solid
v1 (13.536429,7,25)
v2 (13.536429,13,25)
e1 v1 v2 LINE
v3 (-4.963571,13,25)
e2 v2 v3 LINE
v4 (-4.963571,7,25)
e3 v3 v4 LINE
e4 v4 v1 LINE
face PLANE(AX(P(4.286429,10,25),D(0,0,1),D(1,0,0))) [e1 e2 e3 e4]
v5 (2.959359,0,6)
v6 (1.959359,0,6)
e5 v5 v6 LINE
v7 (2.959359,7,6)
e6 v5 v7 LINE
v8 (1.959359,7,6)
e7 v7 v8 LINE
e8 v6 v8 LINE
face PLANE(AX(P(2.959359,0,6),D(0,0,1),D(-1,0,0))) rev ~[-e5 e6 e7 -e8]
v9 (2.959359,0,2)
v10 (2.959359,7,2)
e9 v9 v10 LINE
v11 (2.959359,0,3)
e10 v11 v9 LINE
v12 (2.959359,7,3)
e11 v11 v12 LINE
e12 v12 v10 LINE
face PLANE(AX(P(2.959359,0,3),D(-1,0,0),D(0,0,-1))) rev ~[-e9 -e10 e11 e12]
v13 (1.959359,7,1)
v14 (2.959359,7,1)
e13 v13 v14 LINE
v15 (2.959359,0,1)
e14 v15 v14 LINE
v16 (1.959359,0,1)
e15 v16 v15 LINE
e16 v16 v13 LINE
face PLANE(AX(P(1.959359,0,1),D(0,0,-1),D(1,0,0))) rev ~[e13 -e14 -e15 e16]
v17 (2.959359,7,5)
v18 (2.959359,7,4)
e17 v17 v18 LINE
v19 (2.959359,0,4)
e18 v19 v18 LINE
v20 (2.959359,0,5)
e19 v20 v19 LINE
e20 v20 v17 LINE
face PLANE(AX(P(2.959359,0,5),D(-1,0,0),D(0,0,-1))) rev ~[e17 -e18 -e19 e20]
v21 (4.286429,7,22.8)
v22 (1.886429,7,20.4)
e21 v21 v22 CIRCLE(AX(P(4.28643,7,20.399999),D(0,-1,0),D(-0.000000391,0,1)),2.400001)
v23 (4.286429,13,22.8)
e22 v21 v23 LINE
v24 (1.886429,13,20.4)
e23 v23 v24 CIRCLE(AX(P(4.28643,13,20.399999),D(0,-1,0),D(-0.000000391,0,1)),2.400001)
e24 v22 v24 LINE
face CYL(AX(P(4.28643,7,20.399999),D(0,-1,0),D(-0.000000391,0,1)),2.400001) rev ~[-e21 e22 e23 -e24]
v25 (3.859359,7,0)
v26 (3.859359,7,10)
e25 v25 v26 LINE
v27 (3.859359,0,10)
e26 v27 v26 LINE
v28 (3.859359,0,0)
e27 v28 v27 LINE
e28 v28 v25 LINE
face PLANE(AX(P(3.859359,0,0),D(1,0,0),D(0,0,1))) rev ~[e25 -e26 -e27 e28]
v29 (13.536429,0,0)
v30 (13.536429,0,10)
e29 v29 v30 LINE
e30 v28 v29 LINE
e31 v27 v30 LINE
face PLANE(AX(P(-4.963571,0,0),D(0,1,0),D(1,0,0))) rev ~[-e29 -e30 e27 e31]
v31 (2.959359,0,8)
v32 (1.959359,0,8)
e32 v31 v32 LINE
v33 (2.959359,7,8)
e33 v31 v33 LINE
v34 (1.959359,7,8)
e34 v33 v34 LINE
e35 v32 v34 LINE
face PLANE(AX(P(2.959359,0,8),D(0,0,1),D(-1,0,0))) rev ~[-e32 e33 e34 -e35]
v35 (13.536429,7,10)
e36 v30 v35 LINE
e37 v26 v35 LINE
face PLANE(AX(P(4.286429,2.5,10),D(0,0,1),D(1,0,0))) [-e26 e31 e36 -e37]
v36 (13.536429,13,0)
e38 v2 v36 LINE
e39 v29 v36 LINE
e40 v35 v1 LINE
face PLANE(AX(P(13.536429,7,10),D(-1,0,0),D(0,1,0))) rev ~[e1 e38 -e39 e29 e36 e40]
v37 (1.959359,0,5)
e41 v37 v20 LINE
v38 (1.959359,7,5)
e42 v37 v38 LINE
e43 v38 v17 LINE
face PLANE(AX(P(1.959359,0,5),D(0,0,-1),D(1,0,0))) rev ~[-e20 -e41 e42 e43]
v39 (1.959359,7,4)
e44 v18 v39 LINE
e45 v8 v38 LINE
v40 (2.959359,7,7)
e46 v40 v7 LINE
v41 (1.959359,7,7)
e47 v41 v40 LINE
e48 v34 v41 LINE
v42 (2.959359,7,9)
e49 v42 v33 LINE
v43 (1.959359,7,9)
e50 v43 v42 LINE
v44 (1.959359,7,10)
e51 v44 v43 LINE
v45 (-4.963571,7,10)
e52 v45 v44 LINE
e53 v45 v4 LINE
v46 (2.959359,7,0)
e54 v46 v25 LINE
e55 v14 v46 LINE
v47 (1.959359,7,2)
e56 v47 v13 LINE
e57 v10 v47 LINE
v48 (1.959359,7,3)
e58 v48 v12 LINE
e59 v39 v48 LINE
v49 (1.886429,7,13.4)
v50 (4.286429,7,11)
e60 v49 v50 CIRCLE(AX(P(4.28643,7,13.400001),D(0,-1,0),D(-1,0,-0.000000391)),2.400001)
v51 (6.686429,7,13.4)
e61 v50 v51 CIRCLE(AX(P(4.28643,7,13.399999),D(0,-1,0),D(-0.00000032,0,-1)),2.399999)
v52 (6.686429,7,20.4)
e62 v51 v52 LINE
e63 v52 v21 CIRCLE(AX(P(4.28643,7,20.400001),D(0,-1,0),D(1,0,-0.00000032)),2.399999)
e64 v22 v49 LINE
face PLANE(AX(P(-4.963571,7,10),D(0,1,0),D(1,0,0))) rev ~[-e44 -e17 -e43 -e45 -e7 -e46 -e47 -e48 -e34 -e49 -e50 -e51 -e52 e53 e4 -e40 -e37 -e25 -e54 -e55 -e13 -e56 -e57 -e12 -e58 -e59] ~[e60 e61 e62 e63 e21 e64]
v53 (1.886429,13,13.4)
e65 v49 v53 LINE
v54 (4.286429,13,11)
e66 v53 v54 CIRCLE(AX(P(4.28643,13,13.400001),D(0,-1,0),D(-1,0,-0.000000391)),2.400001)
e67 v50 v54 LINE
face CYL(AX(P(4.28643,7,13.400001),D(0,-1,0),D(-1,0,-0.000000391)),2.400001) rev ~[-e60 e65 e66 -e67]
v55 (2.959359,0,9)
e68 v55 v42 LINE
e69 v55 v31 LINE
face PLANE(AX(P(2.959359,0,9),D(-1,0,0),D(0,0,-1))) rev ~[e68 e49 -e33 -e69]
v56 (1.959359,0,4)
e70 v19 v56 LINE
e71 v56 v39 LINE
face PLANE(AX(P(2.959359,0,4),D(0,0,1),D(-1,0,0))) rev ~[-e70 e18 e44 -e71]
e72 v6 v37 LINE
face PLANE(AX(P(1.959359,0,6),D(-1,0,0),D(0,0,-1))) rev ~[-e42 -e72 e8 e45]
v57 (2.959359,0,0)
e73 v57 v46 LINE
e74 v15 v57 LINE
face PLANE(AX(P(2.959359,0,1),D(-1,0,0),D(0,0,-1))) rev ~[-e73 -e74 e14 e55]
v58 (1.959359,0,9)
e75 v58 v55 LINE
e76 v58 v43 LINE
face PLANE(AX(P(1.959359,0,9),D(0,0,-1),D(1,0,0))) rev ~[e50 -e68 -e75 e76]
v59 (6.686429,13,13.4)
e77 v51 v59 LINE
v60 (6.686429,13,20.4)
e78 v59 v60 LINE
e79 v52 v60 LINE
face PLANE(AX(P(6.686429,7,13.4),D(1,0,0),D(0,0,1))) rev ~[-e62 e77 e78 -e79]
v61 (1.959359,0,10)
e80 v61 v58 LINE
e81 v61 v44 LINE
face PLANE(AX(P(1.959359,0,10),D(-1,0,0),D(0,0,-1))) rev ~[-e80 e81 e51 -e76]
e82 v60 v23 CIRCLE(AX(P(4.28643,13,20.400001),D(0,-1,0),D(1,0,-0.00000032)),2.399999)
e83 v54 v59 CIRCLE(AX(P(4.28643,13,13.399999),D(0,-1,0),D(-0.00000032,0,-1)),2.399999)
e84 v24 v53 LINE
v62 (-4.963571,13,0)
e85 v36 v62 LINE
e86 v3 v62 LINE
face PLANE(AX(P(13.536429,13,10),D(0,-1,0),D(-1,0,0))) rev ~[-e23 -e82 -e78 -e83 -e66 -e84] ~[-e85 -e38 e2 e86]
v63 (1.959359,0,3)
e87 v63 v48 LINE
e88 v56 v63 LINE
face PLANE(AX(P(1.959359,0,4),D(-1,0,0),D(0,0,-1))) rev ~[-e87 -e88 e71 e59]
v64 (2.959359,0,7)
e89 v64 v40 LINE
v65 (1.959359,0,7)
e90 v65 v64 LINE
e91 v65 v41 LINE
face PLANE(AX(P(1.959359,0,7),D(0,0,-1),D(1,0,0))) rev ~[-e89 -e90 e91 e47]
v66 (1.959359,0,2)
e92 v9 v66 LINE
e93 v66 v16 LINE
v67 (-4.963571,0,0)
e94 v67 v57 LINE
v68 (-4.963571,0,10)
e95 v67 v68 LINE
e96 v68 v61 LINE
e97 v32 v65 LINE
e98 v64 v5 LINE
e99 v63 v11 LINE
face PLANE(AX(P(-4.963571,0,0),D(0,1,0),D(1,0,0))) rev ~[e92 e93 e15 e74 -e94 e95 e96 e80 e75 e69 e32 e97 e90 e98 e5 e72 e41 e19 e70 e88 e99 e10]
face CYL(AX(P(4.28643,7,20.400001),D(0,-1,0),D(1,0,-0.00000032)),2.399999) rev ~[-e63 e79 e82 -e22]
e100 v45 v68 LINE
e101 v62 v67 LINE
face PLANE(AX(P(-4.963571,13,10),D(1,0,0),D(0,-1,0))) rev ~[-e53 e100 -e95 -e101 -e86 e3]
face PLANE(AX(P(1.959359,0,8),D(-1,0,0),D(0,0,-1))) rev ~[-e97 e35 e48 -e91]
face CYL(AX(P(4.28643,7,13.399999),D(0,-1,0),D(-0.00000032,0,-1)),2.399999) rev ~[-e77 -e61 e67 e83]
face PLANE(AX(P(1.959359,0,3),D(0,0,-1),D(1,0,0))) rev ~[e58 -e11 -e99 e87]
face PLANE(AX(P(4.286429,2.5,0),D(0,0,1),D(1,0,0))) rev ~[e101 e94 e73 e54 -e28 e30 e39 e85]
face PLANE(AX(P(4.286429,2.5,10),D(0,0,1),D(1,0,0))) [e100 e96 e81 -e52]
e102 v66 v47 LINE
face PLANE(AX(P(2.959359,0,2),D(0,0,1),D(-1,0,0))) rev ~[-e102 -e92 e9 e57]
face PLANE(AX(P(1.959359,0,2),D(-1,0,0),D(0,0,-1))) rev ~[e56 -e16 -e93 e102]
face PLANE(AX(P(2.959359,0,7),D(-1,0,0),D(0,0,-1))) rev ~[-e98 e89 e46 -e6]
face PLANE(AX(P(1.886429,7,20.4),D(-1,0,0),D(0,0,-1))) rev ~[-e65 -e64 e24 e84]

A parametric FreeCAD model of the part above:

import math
import FreeCAD as App
import Part
import Sketcher

V = App.Vector

doc = App.newDocument("Part")
body = doc.addObject("PartDesign::Body", "Body")

# Sketch on XY plane
sketch1 = body.newObject("Sketcher::SketchObject", "Sketch")
sketch1.AttachmentSupport = (doc.getObject("XY_Plane"), [""])
sketch1.MapMode = "FlatFace"
sketch1.addGeometry(Part.LineSegment(V(-4.963571, 0, 0), V(13.536429, 0, 0)), False)
sketch1.addGeometry(Part.LineSegment(V(13.536429, 0, 0), V(13.536429, 13, 0)), False)
sketch1.addGeometry(Part.LineSegment(V(13.536429, 13, 0), V(-4.963571, 13, 0)), False)
sketch1.addGeometry(Part.LineSegment(V(-4.963571, 13, 0), V(-4.963571, 0, 0)), False)
sketch1.addConstraint(Sketcher.Constraint("Coincident", 0, 2, 1, 1))
sketch1.addConstraint(Sketcher.Constraint("Coincident", 1, 2, 2, 1))
sketch1.addConstraint(Sketcher.Constraint("Coincident", 2, 2, 3, 1))
sketch1.addConstraint(Sketcher.Constraint("Coincident", 3, 2, 0, 1))
sketch1.addConstraint(Sketcher.Constraint("Horizontal", 0))
sketch1.addConstraint(Sketcher.Constraint("Vertical", 1))
sketch1.addConstraint(Sketcher.Constraint("Horizontal", 2))
sketch1.addConstraint(Sketcher.Constraint("Vertical", 3))
sketch1.addConstraint(Sketcher.Constraint("PointOnObject", 0, 2, -1))
sketch1.addConstraint(Sketcher.Constraint("DistanceY", 1, 1, 1, 2, 13.0))
sketch1.addConstraint(Sketcher.Constraint("DistanceX", 0, 1, 0, 2, 18.5))
sketch1.addConstraint(Sketcher.Constraint("DistanceX", -1, 1, 0, 2, 13.536429))
pad1 = body.newObject("PartDesign::Pad", "Pad")
pad1.Profile = sketch1
pad1.Length = 10

# Sketch on XZ plane
sketch2 = body.newObject("Sketcher::SketchObject", "Sketch001")
sketch2.AttachmentSupport = (doc.getObject("XZ_Plane"), [""])
sketch2.MapMode = "FlatFace"
sketch2.addGeometry(Part.LineSegment(V(3.859359, 10, 0), V(1.959359, 10, 0)), False)
sketch2.addGeometry(Part.LineSegment(V(1.959359, 10, 0), V(1.959359, 9, 0)), False)
sketch2.addGeometry(Part.LineSegment(V(1.959359, 9, 0), V(2.959359, 9, 0)), False)
sketch2.addGeometry(Part.LineSegment(V(2.959359, 9, 0), V(2.959359, 8, 0)), False)
sketch2.addGeometry(Part.LineSegment(V(2.959359, 8, 0), V(1.959359, 8, 0)), False)
sketch2.addGeometry(Part.LineSegment(V(1.959359, 8, 0), V(1.959359, 7, 0)), False)
sketch2.addGeometry(Part.LineSegment(V(1.959359, 7, 0), V(2.959359, 7, 0)), False)
sketch2.addGeometry(Part.LineSegment(V(2.959359, 7, 0), V(2.959359, 6, 0)), False)
sketch2.addGeometry(Part.LineSegment(V(2.959359, 6, 0), V(1.959359, 6, 0)), False)
sketch2.addGeometry(Part.LineSegment(V(1.959359, 6, 0), V(1.959359, 5, 0)), False)
sketch2.addGeometry(Part.LineSegment(V(1.959359, 5, 0), V(2.959359, 5, 0)), False)
sketch2.addGeometry(Part.LineSegment(V(2.959359, 5, 0), V(2.959359, 4, 0)), False)
sketch2.addGeometry(Part.LineSegment(V(2.959359, 4, 0), V(1.959359, 4, 0)), False)
sketch2.addGeometry(Part.LineSegment(V(1.959359, 4, 0), V(1.959359, 3, 0)), False)
sketch2.addGeometry(Part.LineSegment(V(1.959359, 3, 0), V(2.959359, 3, 0)), False)
sketch2.addGeometry(Part.LineSegment(V(2.959359, 3, 0), V(2.959359, 2, 0)), False)
sketch2.addGeometry(Part.LineSegment(V(2.959359, 2, 0), V(1.959359, 2, 0)), False)
sketch2.addGeometry(Part.LineSegment(V(1.959359, 2, 0), V(1.959359, 1, 0)), False)
sketch2.addGeometry(Part.LineSegment(V(1.959359, 1, 0), V(2.959359, 1, 0)), False)
sketch2.addGeometry(Part.LineSegment(V(2.959359, 1, 0), V(2.959359, 0, 0)), False)
sketch2.addGeometry(Part.LineSegment(V(2.959359, 0, 0), V(3.859359, 0, 0)), False)
sketch2.addGeometry(Part.LineSegment(V(3.859359, 0, 0), V(3.859359, 10, 0)), False)
sketch2.addConstraint(Sketcher.Constraint("Coincident", 0, 2, 1, 1))
sketch2.addConstraint(Sketcher.Constraint("Coincident", 1, 2, 2, 1))
sketch2.addConstraint(Sketcher.Constraint("Coincident", 2, 2, 3, 1))
sketch2.addConstraint(Sketcher.Constraint("Coincident", 3, 2, 4, 1))
sketch2.addConstraint(Sketcher.Constraint("Coincident", 4, 2, 5, 1))
sketch2.addConstraint(Sketcher.Constraint("Coincident", 5, 2, 6, 1))
sketch2.addConstraint(Sketcher.Constraint("Coincident", 6, 2, 7, 1))
sketch2.addConstraint(Sketcher.Constraint("Coincident", 7, 2, 8, 1))
sketch2.addConstraint(Sketcher.Constraint("Coincident", 8, 2, 9, 1))
sketch2.addConstraint(Sketcher.Constraint("Coincident", 9, 2, 10, 1))
sketch2.addConstraint(Sketcher.Constraint("Coincident", 10, 2, 11, 1))
sketch2.addConstraint(Sketcher.Constraint("Coincident", 11, 2, 12, 1))
sketch2.addConstraint(Sketcher.Constraint("Coincident", 12, 2, 13, 1))
sketch2.addConstraint(Sketcher.Constraint("Coincident", 13, 2, 14, 1))
sketch2.addConstraint(Sketcher.Constraint("Coincident", 14, 2, 15, 1))
sketch2.addConstraint(Sketcher.Constraint("Coincident", 15, 2, 16, 1))
sketch2.addConstraint(Sketcher.Constraint("Coincident", 16, 2, 17, 1))
sketch2.addConstraint(Sketcher.Constraint("Coincident", 17, 2, 18, 1))
sketch2.addConstraint(Sketcher.Constraint("Coincident", 18, 2, 19, 1))
sketch2.addConstraint(Sketcher.Constraint("Coincident", 19, 2, 20, 1))
sketch2.addConstraint(Sketcher.Constraint("Coincident", 20, 2, 21, 1))
sketch2.addConstraint(Sketcher.Constraint("Coincident", 21, 2, 0, 1))
sketch2.addConstraint(Sketcher.Constraint("Horizontal", 0))
sketch2.addConstraint(Sketcher.Constraint("Vertical", 1))
sketch2.addConstraint(Sketcher.Constraint("Horizontal", 2))
sketch2.addConstraint(Sketcher.Constraint("Vertical", 3))
sketch2.addConstraint(Sketcher.Constraint("Horizontal", 4))
sketch2.addConstraint(Sketcher.Constraint("Vertical", 5))
sketch2.addConstraint(Sketcher.Constraint("Horizontal", 6))
sketch2.addConstraint(Sketcher.Constraint("Vertical", 7))
sketch2.addConstraint(Sketcher.Constraint("Horizontal", 8))
sketch2.addConstraint(Sketcher.Constraint("Vertical", 9))
sketch2.addConstraint(Sketcher.Constraint("Horizontal", 10))
sketch2.addConstraint(Sketcher.Constraint("Vertical", 11))
sketch2.addConstraint(Sketcher.Constraint("Horizontal", 12))
sketch2.addConstraint(Sketcher.Constraint("Vertical", 13))
sketch2.addConstraint(Sketcher.Constraint("Horizontal", 14))
sketch2.addConstraint(Sketcher.Constraint("Vertical", 15))
sketch2.addConstraint(Sketcher.Constraint("Horizontal", 16))
sketch2.addConstraint(Sketcher.Constraint("Vertical", 17))
sketch2.addConstraint(Sketcher.Constraint("Horizontal", 18))
sketch2.addConstraint(Sketcher.Constraint("Vertical", 19))
sketch2.addConstraint(Sketcher.Constraint("Horizontal", 20))
sketch2.addConstraint(Sketcher.Constraint("Vertical", 21))
sketch2.addConstraint(Sketcher.Constraint("PointOnObject", 19, 2, -1))
sketch2.addConstraint(Sketcher.Constraint("Vertical", 1, 2, 4, 2))
sketch2.addConstraint(Sketcher.Constraint("Vertical", 3, 2, 6, 2))
sketch2.addConstraint(Sketcher.Constraint("Vertical", 5, 2, 8, 2))
sketch2.addConstraint(Sketcher.Constraint("Vertical", 7, 2, 10, 2))
sketch2.addConstraint(Sketcher.Constraint("Vertical", 9, 2, 12, 2))
sketch2.addConstraint(Sketcher.Constraint("Vertical", 11, 2, 14, 2))
sketch2.addConstraint(Sketcher.Constraint("Vertical", 13, 2, 16, 2))
sketch2.addConstraint(Sketcher.Constraint("Vertical", 15, 2, 18, 2))
sketch2.addConstraint(Sketcher.Constraint("Equal", 18, 1))
sketch2.addConstraint(Sketcher.Constraint("Equal", 1, 3))
sketch2.addConstraint(Sketcher.Constraint("Equal", 3, 5))
sketch2.addConstraint(Sketcher.Constraint("Equal", 5, 7))
sketch2.addConstraint(Sketcher.Constraint("Equal", 7, 9))
sketch2.addConstraint(Sketcher.Constraint("Equal", 9, 11))
sketch2.addConstraint(Sketcher.Constraint("Equal", 11, 13))
sketch2.addConstraint(Sketcher.Constraint("Equal", 13, 15))
sketch2.addConstraint(Sketcher.Constraint("Equal", 15, 17))
sketch2.addConstraint(Sketcher.Constraint("Equal", 17, 19))
sketch2.addConstraint(Sketcher.Constraint("DistanceX", 2, 1, 2, 2, 1.0))
sketch2.addConstraint(Sketcher.Constraint("DistanceX", 0, 2, 0, 1, 1.9))
sketch2.addConstraint(Sketcher.Constraint("DistanceX", -1, 1, 0, 2, 1.959359))
pocket1 = body.newObject("PartDesign::Pocket", "Pocket")
pocket1.Profile = sketch2
pocket1.Length = 7

# Sketch on XY plane
sketch3 = body.newObject("Sketcher::SketchObject", "Sketch002")
sketch3.AttachmentSupport = (doc.getObject("XY_Plane"), [""])
sketch3.MapMode = "FlatFace"
sketch3.AttachmentOffset = App.Placement(V(0, 0, 10), App.Rotation())
sketch3.addGeometry(Part.LineSegment(V(-4.963571, 13, 0), V(-4.963571, 7, 0)), False)
sketch3.addGeometry(Part.LineSegment(V(-4.963571, 7, 0), V(13.536429, 7, 0)), False)
sketch3.addGeometry(Part.LineSegment(V(13.536429, 7, 0), V(13.536429, 13, 0)), False)
sketch3.addGeometry(Part.LineSegment(V(13.536429, 13, 0), V(-4.963571, 13, 0)), False)
sketch3.addConstraint(Sketcher.Constraint("Coincident", 0, 2, 1, 1))
sketch3.addConstraint(Sketcher.Constraint("Coincident", 1, 2, 2, 1))
sketch3.addConstraint(Sketcher.Constraint("Coincident", 2, 2, 3, 1))
sketch3.addConstraint(Sketcher.Constraint("Coincident", 3, 2, 0, 1))
sketch3.addConstraint(Sketcher.Constraint("Vertical", 0))
sketch3.addConstraint(Sketcher.Constraint("Horizontal", 1))
sketch3.addConstraint(Sketcher.Constraint("Vertical", 2))
sketch3.addConstraint(Sketcher.Constraint("Horizontal", 3))
sketch3.addConstraint(Sketcher.Constraint("DistanceY", 0, 2, 0, 1, 6.0))
sketch3.addConstraint(Sketcher.Constraint("DistanceX", 1, 1, 1, 2, 18.5))
sketch3.addConstraint(Sketcher.Constraint("DistanceY", -1, 1, 0, 2, 7.0))
sketch3.addConstraint(Sketcher.Constraint("DistanceX", 0, 2, -1, 1, 4.963571))
pad2 = body.newObject("PartDesign::Pad", "Pad001")
pad2.Profile = sketch3
pad2.Length = 15

# Sketch on XZ plane
sketch4 = body.newObject("Sketcher::SketchObject", "Sketch003")
sketch4.AttachmentSupport = (doc.getObject("XZ_Plane"), [""])
sketch4.MapMode = "FlatFace"
sketch4.AttachmentOffset = App.Placement(V(0, 0, -7), App.Rotation())
sketch4.addGeometry(Part.LineSegment(V(6.686429, 13.4, 0), V(6.686429, 20.4, 0)), False)
sketch4.addGeometry(Part.ArcOfCircle(Part.Circle(V(4.28643, 20.400001, 0), V(0, 0, 1), 2.399999), math.radians(-0.000018), math.radians(90.000018)), False)
sketch4.addGeometry(Part.ArcOfCircle(Part.Circle(V(4.28643, 20.399999, 0), V(0, 0, 1), 2.400001), math.radians(90.000022), math.radians(179.999978)), False)
sketch4.addGeometry(Part.LineSegment(V(1.886429, 20.4, 0), V(1.886429, 13.4, 0)), False)
sketch4.addGeometry(Part.ArcOfCircle(Part.Circle(V(4.28643, 13.400001, 0), V(0, 0, 1), 2.400001), math.radians(-179.999978), math.radians(-90.000022)), False)
sketch4.addGeometry(Part.ArcOfCircle(Part.Circle(V(4.28643, 13.399999, 0), V(0, 0, 1), 2.399999), math.radians(-90.000018), math.radians(0.000018)), False)
sketch4.addConstraint(Sketcher.Constraint("Tangent", 0, 2, 1, 1))
sketch4.addConstraint(Sketcher.Constraint("Tangent", 1, 2, 2, 1))
sketch4.addConstraint(Sketcher.Constraint("Tangent", 2, 2, 3, 1))
sketch4.addConstraint(Sketcher.Constraint("Tangent", 3, 2, 4, 1))
sketch4.addConstraint(Sketcher.Constraint("Tangent", 4, 2, 5, 1))
sketch4.addConstraint(Sketcher.Constraint("Tangent", 5, 2, 0, 1))
sketch4.addConstraint(Sketcher.Constraint("Vertical", 0))
sketch4.addConstraint(Sketcher.Constraint("Vertical", 3))
sketch4.addConstraint(Sketcher.Constraint("Equal", 1, 2))
sketch4.addConstraint(Sketcher.Constraint("Equal", 2, 4))
sketch4.addConstraint(Sketcher.Constraint("Vertical", 5, 3, 1, 2))
sketch4.addConstraint(Sketcher.Constraint("Vertical", 1, 2, 4, 2))
sketch4.addConstraint(Sketcher.Constraint("Radius", 1, 2.399999))
sketch4.addConstraint(Sketcher.Constraint("DistanceY", 0, 1, 0, 2, 7.0))
sketch4.addConstraint(Sketcher.Constraint("DistanceY", -1, 1, 4, 2, 11.0))
sketch4.addConstraint(Sketcher.Constraint("DistanceX", -1, 1, 1, 3, 4.28643))
pocket2 = body.newObject("PartDesign::Pocket", "Pocket001")
pocket2.Profile = sketch4
pocket2.Length = 25

doc.recompute()
